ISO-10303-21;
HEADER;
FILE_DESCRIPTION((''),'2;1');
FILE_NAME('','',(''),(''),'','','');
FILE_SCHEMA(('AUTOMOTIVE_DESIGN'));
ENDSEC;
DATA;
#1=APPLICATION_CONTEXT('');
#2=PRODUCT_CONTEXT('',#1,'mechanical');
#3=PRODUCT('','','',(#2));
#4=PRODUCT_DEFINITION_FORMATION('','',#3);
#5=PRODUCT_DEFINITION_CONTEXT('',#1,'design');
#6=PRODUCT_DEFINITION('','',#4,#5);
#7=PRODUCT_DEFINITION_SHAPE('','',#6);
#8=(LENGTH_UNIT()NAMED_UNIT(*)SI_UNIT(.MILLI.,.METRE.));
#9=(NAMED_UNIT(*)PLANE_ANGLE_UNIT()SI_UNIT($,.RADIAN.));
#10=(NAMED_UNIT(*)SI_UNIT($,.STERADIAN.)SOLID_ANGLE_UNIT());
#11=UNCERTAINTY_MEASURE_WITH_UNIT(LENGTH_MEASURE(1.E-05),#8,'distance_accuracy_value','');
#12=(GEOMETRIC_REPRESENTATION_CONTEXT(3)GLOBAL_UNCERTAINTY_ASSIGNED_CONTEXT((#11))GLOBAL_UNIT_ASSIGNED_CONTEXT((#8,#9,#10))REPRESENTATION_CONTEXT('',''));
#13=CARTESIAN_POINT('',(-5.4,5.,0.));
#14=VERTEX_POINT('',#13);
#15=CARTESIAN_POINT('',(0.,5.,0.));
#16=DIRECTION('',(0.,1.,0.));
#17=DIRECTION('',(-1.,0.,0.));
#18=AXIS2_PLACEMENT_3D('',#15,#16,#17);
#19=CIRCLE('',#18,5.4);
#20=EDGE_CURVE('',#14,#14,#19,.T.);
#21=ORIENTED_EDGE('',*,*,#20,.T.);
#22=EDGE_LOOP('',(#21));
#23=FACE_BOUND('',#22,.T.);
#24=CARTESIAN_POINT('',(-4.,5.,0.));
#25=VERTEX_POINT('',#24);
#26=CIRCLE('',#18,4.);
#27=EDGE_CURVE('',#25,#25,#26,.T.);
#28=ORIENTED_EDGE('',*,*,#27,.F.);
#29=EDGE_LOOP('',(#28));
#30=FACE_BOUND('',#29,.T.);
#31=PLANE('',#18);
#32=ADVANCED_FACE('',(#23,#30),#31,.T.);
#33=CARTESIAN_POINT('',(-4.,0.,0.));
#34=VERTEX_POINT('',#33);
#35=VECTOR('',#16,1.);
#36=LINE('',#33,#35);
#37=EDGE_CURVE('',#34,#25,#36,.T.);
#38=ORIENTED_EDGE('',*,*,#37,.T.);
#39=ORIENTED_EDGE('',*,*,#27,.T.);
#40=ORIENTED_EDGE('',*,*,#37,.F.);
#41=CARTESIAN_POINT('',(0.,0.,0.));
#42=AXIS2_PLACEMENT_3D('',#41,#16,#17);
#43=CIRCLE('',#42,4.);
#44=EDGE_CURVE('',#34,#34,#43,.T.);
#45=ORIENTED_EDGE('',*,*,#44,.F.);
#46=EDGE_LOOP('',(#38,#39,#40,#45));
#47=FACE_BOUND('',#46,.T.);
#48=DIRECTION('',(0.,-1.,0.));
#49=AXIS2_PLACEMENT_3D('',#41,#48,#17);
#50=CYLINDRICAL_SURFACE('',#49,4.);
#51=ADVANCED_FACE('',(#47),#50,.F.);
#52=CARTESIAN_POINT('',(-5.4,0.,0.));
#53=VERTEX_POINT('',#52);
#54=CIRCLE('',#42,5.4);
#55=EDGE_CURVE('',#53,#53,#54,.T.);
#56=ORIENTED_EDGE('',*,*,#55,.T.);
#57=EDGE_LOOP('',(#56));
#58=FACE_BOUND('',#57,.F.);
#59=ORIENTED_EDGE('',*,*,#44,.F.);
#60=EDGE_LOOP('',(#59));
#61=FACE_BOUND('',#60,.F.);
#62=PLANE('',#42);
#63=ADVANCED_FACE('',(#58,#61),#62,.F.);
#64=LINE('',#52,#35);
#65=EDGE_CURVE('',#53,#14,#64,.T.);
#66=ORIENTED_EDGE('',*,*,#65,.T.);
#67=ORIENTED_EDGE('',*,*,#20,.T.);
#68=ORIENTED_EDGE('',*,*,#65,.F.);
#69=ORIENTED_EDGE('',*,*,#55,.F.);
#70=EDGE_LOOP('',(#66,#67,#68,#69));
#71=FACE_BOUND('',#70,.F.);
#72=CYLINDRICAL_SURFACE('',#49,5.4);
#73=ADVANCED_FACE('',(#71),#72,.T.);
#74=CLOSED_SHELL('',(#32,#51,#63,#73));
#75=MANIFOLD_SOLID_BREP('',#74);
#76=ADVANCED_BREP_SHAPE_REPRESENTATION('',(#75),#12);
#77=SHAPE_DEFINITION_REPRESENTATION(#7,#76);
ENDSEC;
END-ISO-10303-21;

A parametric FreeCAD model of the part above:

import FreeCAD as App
import Part
import Sketcher

V = App.Vector
Q = App.Units.Quantity

doc = App.newDocument("Part")
body = doc.addObject("PartDesign::Body", "Body")

sketch1 = doc.addObject("Sketcher::SketchObject", "Sketch")
body.addObject(sketch1)
sketch1.AttachmentSupport = (doc.XZ_Plane, [""])
sketch1.MapMode = "FlatFace"
sketch1.addGeometry([
    Part.Circle(V(0, 0, 0), V(0, 0, 1), 5.4),
    Part.Circle(V(0, 0, 0), V(0, 0, 1), 4),
], False)
sketch1.addConstraint([
    Sketcher.Constraint("Coincident", 0, 3, -1, 1),
    Sketcher.Constraint("Coincident", 1, 3, -1, 1),
    Sketcher.Constraint("Diameter", 1, Q("8 mm")),
    Sketcher.Constraint("Diameter", 0, Q("10.8 mm")),
])
pad1 = doc.addObject("PartDesign::Pad", "Pad")
body.addObject(pad1)
pad1.Profile = sketch1
pad1.Length = 5
pad1.Reversed = True

doc.recompute()
